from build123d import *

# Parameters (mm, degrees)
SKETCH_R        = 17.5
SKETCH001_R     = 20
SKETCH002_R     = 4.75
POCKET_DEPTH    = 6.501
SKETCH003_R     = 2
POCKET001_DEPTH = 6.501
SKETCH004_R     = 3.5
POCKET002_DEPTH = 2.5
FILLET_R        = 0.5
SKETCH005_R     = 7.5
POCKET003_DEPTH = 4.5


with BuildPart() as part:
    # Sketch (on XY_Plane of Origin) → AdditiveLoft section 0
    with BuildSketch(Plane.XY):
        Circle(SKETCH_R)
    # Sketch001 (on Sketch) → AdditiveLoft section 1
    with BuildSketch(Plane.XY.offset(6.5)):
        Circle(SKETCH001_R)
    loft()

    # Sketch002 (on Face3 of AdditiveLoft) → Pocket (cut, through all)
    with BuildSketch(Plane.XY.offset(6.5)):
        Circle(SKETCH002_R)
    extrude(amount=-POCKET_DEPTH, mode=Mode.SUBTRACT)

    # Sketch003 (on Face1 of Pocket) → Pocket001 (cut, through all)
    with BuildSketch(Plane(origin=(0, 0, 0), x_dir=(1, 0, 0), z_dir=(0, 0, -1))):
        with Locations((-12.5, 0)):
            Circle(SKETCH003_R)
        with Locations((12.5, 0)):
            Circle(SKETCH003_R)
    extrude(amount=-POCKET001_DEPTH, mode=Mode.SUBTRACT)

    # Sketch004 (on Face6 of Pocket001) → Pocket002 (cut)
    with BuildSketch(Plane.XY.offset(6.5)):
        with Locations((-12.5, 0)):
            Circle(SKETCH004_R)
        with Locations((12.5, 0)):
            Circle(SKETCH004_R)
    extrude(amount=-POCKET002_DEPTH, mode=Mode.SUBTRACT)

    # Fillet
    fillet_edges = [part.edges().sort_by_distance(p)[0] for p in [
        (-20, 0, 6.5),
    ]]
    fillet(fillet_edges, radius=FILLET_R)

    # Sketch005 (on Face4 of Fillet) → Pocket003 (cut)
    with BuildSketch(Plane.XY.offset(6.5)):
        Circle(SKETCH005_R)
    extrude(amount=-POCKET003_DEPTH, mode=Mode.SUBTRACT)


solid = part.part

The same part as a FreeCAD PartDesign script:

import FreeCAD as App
import Part
import Sketcher

V = App.Vector
Q = App.Units.Quantity


def edges_at(feature, points):
    """Names of the edges that pass closest to the given points."""
    edges = feature.Shape.Edges
    near = lambda p: min(range(len(edges)), key=lambda i: edges[i].distToShape(Part.Vertex(*p))[0])
    return sorted({f"Edge{near(p) + 1}" for p in points})

doc = App.newDocument("Part")
params = doc.addObject("Spreadsheet::Sheet", "Params")
for row, (alias, value) in enumerate([
    ("sketch1_diameter", "35 mm"),
    ("sketch2_diameter", "40 mm"),
    ("sketch3_diameter", "9.5 mm"),
    ("sketch4_diameter", "4 mm"),
    ("sketch5_diameter", "7 mm"),
    ("pocket3_length", "2.5 mm"),
    ("fillet_radius", "0.5 mm"),
    ("sketch6_diameter", "15 mm"),
    ("pocket4_length", "4.5 mm"),
], start=1):
    params.set(f"A{row}", alias)
    params.set(f"B{row}", "=" + value)
    params.setAlias(f"B{row}", alias)

body = doc.addObject("PartDesign::Body", "Body")

sketch1 = body.newObject("Sketcher::SketchObject", "Sketch")
sketch1.AttachmentSupport = (doc.getObject("XY_Plane"), [""])
sketch1.MapMode = "FlatFace"
sketch1.addGeometry(Part.Circle(V(0, 0, 0), V(0, 0, 1), 18), False)
sketch1.addConstraint([
    Sketcher.Constraint("Coincident", 0, 3, -1, 1),
    Sketcher.Constraint("Diameter", 0, Q("35 mm")),
])
sketch1.setExpression("Constraints[1]", "Params.sketch1_diameter")

sketch2 = body.newObject("Sketcher::SketchObject", "Sketch001")
sketch2.AttachmentSupport = (doc.getObject("XY_Plane"), [""])
sketch2.MapMode = "FlatFace"
sketch2.AttachmentOffset = App.Placement(V(0, 0, 6.5), App.Rotation())
sketch2.addGeometry(Part.Circle(V(0, 0, 0), V(0, 0, 1), 20), False)
sketch2.addConstraint([
    Sketcher.Constraint("Coincident", 0, 3, -1, 1),
    Sketcher.Constraint("Diameter", 0, Q("40 mm")),
])
sketch2.setExpression("Constraints[1]", "Params.sketch2_diameter")

additiveloft = body.newObject("PartDesign::AdditiveLoft", "AdditiveLoft")
additiveloft.Profile = sketch1
additiveloft.Sections = [sketch2]

sketch3 = body.newObject("Sketcher::SketchObject", "Sketch002")
sketch3.AttachmentSupport = (doc.getObject("XY_Plane"), [""])
sketch3.MapMode = "FlatFace"
sketch3.AttachmentOffset = App.Placement(V(0, 0, 6.5), App.Rotation())
sketch3.addGeometry(Part.Circle(V(0, 0, 0), V(0, 0, 1), 4.8), False)
sketch3.addConstraint([
    Sketcher.Constraint("Coincident", 0, 3, -1, 1),
    Sketcher.Constraint("Diameter", 0, Q("9.5 mm")),
])
sketch3.setExpression("Constraints[1]", "Params.sketch3_diameter")
pocket1 = body.newObject("PartDesign::Pocket", "Pocket")
pocket1.Profile = sketch3
pocket1.Type = "ThroughAll"

sketch4 = body.newObject("Sketcher::SketchObject", "Sketch003")
sketch4.AttachmentSupport = (doc.getObject("XY_Plane"), [""])
sketch4.MapMode = "FlatFace"
sketch4.addGeometry([
    Part.Circle(V(-12.5, 0, 0), V(0, 0, 1), 2),
    Part.Circle(V(12.5, 0, 0), V(0, 0, 1), 2),
], False)
sketch4.addConstraint([
    Sketcher.Constraint("Equal", 0, 1),
    Sketcher.Constraint("Symmetric", 0, 3, 1, 3, -1, 1),
    Sketcher.Constraint("PointOnObject", 0, 3, -1),
    Sketcher.Constraint("Diameter", 0, Q("4 mm")),
    Sketcher.Constraint("DistanceX", 0, 3, 1, 3, Q("25 mm")),
])
sketch4.setExpression("Constraints[3]", "Params.sketch4_diameter")
pocket2 = body.newObject("PartDesign::Pocket", "Pocket001")
pocket2.Profile = sketch4
pocket2.Type = "ThroughAll"
pocket2.Reversed = True

sketch5 = body.newObject("Sketcher::SketchObject", "Sketch004")
sketch5.AttachmentSupport = (doc.getObject("XY_Plane"), [""])
sketch5.MapMode = "FlatFace"
sketch5.AttachmentOffset = App.Placement(V(0, 0, 6.5), App.Rotation())
sketch5.addGeometry([
    Part.Circle(V(-12.5, 0, 0), V(0, 0, 1), 3.5),
    Part.Circle(V(12.5, 0, 0), V(0, 0, 1), 3.5),
], False)
sketch5.addConstraint([
    Sketcher.Constraint("Equal", 0, 1),
    Sketcher.Constraint("Symmetric", 0, 3, 1, 3, -1, 1),
    Sketcher.Constraint("PointOnObject", 0, 3, -1),
    Sketcher.Constraint("Diameter", 0, Q("7 mm")),
    Sketcher.Constraint("DistanceX", 0, 3, 1, 3, Q("25 mm")),
])
sketch5.setExpression("Constraints[3]", "Params.sketch5_diameter")
pocket3 = body.newObject("PartDesign::Pocket", "Pocket002")
pocket3.Profile = sketch5
pocket3.setExpression("Length", "Params.pocket3_length")
doc.recompute()

fillet = body.newObject("PartDesign::Fillet", "Fillet")
fillet.Base = (pocket3, edges_at(pocket3, [(-20, 0, 6.5)]))
fillet.setExpression("Radius", "Params.fillet_radius")

sketch6 = body.newObject("Sketcher::SketchObject", "Sketch005")
sketch6.AttachmentSupport = (doc.getObject("XY_Plane"), [""])
sketch6.MapMode = "FlatFace"
sketch6.AttachmentOffset = App.Placement(V(0, 0, 6.5), App.Rotation())
sketch6.addGeometry(Part.Circle(V(0, 0, 0), V(0, 0, 1), 8), False)
sketch6.addConstraint([
    Sketcher.Constraint("Coincident", 0, 3, -1, 1),
    Sketcher.Constraint("Diameter", 0, Q("15 mm")),
])
sketch6.setExpression("Constraints[1]", "Params.sketch6_diameter")
pocket4 = body.newObject("PartDesign::Pocket", "Pocket003")
pocket4.Profile = sketch6
pocket4.setExpression("Length", "Params.pocket4_length")

doc.recompute()
